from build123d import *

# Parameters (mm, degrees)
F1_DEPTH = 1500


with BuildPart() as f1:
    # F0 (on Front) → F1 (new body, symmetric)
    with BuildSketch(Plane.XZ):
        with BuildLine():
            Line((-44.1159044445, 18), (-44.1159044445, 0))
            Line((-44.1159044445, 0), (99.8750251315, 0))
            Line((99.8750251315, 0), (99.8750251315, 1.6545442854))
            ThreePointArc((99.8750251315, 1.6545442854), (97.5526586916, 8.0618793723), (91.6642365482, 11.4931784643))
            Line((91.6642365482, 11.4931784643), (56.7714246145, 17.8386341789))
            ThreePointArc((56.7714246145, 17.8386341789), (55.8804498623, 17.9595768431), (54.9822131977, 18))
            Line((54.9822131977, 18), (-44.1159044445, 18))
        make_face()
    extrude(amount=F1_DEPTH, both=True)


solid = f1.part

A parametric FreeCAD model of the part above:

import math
import FreeCAD as App
import Part
import Sketcher

V = App.Vector
Q = App.Units.Quantity

doc = App.newDocument("Part")
body = doc.addObject("PartDesign::Body", "Body")

sketch1 = doc.addObject("Sketcher::SketchObject", "Sketch")
body.addObject(sketch1)
sketch1.AttachmentSupport = (doc.XZ_Plane, [""])
sketch1.MapMode = "FlatFace"
sketch1.addGeometry(Part.LineSegment(V(-44.1, 18, 0), V(-44.1, 0, 0)), False)
sketch1.addGeometry(Part.LineSegment(V(-44.1, 0, 0), V(99.9, 0, 0)), False)
sketch1.addGeometry(Part.LineSegment(V(99.9, 0, 0), V(99.9, 1.7, 0)), False)
sketch1.addGeometry(Part.ArcOfCircle(Part.Circle(V(89.9, 1.7, 0), V(0, 0, 1), 10), math.radians(0), math.radians(80)), False)
sketch1.addGeometry(Part.LineSegment(V(91.7, 11.5, 0), V(56.8, 17.8, 0)), False)
sketch1.addGeometry(Part.ArcOfCircle(Part.Circle(V(55, 8, 0), V(0, 0, 1), 10), math.radians(79.69), math.radians(90)), False)
sketch1.addGeometry(Part.LineSegment(V(55, 18, 0), V(-44.1, 18, 0)), False)
sketch1.addConstraint(Sketcher.Constraint("Coincident", 0, 2, 1, 1))
sketch1.addConstraint(Sketcher.Constraint("Coincident", 1, 2, 2, 1))
sketch1.addConstraint(Sketcher.Constraint("Tangent", 2, 2, 3, 1))
sketch1.addConstraint(Sketcher.Constraint("Tangent", 3, 2, 4, 1))
sketch1.addConstraint(Sketcher.Constraint("Tangent", 4, 2, 5, 1))
sketch1.addConstraint(Sketcher.Constraint("Tangent", 5, 2, 6, 1))
sketch1.addConstraint(Sketcher.Constraint("Coincident", 6, 2, 0, 1))
sketch1.addConstraint(Sketcher.Constraint("Vertical", 0))
sketch1.addConstraint(Sketcher.Constraint("Horizontal", 1))
sketch1.addConstraint(Sketcher.Constraint("Vertical", 2))
sketch1.addConstraint(Sketcher.Constraint("Horizontal", 6))
sketch1.addConstraint(Sketcher.Constraint("Equal", 3, 5))
sketch1.addConstraint(Sketcher.Constraint("PointOnObject", 0, 2, -1))
sketch1.addConstraint(Sketcher.Constraint("Radius", 3, Q("10 mm")))
sketch1.addConstraint(Sketcher.Constraint("DistanceY", 0, 2, 0, 1, Q("18 mm")))
sketch1.addConstraint(Sketcher.Constraint("DistanceX", 1, 1, 1, 2, Q("143.99093 mm")))
sketch1.addConstraint(Sketcher.Constraint("DistanceX", 4, 2, 3, 3, Q("33.103601 mm")))
sketch1.addConstraint(Sketcher.Constraint("DistanceX", 6, 2, 6, 1, Q("99.098118 mm")))
sketch1.addConstraint(Sketcher.Constraint("DistanceX", -1, 1, 3, 3, Q("89.875025 mm")))
pad1 = doc.addObject("PartDesign::Pad", "Pad")
body.addObject(pad1)
pad1.Profile = sketch1
pad1.Length = 3000
pad1.Midplane = True

doc.recompute()
